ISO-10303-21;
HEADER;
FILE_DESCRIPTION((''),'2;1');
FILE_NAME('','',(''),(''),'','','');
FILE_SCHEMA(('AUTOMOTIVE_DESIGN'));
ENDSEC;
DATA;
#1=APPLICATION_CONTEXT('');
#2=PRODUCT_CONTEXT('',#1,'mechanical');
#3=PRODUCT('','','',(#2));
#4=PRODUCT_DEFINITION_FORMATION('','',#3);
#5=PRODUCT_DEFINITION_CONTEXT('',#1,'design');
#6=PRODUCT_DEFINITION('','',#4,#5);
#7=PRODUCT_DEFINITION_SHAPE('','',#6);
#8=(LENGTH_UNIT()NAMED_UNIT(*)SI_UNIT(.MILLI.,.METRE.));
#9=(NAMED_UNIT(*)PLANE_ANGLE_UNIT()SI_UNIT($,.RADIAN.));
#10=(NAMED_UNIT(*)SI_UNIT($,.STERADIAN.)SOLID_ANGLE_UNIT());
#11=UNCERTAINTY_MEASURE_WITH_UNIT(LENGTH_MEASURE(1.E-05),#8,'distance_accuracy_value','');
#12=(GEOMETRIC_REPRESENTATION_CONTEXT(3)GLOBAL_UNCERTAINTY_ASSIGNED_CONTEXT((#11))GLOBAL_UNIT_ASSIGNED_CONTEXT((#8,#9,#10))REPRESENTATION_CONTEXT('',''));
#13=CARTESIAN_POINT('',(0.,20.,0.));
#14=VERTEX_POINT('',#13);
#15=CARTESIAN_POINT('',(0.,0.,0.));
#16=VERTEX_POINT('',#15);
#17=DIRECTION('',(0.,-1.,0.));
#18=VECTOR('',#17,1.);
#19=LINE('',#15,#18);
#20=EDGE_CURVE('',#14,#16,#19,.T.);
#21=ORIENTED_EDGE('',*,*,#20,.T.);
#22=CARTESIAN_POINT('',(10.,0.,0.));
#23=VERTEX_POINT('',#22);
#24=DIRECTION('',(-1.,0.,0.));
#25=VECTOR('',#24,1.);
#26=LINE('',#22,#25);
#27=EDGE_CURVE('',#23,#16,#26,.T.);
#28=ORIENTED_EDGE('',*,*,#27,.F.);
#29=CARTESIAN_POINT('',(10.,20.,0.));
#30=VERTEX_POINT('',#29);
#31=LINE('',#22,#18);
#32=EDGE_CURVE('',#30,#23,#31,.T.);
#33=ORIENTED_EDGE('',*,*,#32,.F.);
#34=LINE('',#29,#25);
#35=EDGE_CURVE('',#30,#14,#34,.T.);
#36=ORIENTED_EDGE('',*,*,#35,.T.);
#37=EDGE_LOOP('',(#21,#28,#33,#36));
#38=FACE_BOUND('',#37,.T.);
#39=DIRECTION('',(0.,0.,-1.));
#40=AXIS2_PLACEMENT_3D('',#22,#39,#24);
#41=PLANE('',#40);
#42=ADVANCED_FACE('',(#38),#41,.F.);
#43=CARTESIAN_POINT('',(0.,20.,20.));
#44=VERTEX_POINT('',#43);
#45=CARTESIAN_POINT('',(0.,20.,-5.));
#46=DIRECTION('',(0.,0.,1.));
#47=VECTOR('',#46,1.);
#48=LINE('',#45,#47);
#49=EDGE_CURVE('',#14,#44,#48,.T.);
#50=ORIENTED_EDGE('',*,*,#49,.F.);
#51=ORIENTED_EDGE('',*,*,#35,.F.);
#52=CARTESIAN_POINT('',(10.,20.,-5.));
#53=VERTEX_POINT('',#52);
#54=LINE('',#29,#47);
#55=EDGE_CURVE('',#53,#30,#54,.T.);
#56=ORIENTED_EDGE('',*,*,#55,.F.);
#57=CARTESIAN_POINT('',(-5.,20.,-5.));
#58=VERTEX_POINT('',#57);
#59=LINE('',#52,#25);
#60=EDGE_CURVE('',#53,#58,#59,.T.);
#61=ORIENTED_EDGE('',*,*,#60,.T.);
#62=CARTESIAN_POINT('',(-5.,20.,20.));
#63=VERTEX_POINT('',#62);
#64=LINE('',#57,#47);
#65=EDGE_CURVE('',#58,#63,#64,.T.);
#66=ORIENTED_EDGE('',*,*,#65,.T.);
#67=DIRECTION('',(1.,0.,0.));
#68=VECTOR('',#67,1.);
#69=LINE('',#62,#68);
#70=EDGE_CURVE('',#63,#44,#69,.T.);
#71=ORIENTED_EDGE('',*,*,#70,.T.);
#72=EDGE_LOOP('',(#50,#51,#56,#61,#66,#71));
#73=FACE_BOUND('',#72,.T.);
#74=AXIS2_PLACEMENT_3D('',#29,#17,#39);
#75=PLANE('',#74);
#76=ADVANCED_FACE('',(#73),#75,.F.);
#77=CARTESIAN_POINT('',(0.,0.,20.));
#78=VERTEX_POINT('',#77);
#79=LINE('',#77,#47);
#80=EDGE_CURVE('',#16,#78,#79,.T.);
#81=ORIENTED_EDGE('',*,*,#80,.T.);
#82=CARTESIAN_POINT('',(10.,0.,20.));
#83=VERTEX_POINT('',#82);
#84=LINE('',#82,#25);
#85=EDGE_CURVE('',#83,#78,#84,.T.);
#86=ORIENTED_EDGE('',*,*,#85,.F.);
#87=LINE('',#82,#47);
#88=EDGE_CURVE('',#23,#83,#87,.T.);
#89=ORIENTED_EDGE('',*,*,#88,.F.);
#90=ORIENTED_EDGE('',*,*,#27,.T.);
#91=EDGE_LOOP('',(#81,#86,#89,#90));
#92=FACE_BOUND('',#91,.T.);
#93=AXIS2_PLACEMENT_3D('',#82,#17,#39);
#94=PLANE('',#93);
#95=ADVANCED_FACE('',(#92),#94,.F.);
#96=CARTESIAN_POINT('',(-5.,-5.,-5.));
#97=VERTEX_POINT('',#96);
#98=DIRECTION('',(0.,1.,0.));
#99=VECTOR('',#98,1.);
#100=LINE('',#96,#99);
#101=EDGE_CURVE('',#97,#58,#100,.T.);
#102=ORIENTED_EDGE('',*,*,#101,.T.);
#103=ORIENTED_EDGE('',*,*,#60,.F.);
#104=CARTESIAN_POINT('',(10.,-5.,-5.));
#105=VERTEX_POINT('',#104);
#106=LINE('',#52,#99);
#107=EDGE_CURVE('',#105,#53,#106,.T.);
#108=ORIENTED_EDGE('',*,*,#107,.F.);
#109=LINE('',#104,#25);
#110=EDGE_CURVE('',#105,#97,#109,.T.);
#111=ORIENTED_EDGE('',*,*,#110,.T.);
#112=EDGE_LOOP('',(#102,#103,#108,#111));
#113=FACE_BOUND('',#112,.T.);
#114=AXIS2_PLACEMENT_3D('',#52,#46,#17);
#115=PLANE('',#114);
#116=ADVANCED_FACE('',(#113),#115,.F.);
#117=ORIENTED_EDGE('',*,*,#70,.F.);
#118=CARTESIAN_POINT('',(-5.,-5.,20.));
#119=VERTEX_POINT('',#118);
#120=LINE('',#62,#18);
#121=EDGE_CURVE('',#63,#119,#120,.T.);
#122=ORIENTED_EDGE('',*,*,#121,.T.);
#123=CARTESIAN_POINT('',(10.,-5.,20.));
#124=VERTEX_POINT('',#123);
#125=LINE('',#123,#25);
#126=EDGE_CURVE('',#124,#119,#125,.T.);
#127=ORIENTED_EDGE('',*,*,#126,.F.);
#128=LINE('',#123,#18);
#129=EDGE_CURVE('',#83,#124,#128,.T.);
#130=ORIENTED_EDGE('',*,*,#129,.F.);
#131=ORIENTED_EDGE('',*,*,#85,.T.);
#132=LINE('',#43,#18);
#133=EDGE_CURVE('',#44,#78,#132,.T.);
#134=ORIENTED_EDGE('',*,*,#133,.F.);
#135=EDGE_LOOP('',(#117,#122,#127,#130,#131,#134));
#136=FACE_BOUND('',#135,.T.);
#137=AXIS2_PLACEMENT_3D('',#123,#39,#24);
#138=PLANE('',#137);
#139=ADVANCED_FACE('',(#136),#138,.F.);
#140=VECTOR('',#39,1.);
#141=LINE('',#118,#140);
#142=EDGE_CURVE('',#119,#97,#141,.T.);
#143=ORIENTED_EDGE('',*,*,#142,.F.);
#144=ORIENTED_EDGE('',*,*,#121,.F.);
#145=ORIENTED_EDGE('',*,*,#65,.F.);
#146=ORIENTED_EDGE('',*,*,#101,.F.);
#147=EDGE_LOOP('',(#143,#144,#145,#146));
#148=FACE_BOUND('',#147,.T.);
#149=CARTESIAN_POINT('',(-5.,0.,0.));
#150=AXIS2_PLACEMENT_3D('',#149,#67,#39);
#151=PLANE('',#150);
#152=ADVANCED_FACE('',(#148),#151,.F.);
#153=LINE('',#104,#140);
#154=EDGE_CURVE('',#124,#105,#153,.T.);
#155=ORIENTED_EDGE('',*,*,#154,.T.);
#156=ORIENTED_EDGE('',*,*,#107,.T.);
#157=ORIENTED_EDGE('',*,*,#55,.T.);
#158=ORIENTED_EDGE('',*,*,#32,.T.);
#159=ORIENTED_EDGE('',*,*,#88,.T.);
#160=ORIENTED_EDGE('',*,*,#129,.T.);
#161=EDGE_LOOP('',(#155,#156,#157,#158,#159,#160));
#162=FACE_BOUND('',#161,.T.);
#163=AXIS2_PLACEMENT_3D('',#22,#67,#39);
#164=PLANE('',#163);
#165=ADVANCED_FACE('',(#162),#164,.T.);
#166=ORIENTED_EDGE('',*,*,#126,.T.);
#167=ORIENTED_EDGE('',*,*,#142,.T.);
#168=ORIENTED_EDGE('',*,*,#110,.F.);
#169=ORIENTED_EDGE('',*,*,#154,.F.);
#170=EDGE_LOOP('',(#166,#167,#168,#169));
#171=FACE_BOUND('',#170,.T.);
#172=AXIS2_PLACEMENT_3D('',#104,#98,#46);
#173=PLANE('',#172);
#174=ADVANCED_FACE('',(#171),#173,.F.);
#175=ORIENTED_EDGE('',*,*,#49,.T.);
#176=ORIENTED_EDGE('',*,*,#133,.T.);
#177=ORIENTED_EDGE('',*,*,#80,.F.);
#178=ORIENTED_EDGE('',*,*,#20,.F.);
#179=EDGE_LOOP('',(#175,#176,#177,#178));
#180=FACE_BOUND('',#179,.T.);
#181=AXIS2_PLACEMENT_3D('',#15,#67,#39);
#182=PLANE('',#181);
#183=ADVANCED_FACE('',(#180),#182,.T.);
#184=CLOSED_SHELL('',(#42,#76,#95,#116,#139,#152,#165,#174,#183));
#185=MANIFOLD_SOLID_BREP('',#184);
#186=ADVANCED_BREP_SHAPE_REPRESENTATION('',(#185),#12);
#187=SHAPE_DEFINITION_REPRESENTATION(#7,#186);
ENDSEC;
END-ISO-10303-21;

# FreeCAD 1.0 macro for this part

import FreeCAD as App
import Part
import Sketcher
from FreeCAD import Vector
Q = App.Units.Quantity

doc = App.newDocument("Part")
body = doc.addObject("PartDesign::Body", "Body")

# Sketch on YZ plane
sketch1 = body.newObject("Sketcher::SketchObject", "Sketch")
sketch1.AttachmentSupport = (doc.getObject("YZ_Plane"), [""])
sketch1.MapMode = "FlatFace"
sketch1.addGeometry([
    Part.LineSegment(Vector(20, 0, 0), Vector(0, 0, 0)),  # 0
    Part.LineSegment(Vector(0, 0, 0), Vector(0, 20, 0)),  # 1
    Part.LineSegment(Vector(0, 20, 0), Vector(-5, 20, 0)),  # 2
    Part.LineSegment(Vector(-5, 20, 0), Vector(-5, -5, 0)),  # 3
    Part.LineSegment(Vector(-5, -5, 0), Vector(20, -5, 0)),  # 4
    Part.LineSegment(Vector(20, -5, 0), Vector(20, 0, 0)),  # 5
], False)
sketch1.addConstraint([
    Sketcher.Constraint("Coincident", 0, 2, 1, 1),
    Sketcher.Constraint("Coincident", 1, 2, 2, 1),
    Sketcher.Constraint("Coincident", 2, 2, 3, 1),
    Sketcher.Constraint("Coincident", 3, 2, 4, 1),
    Sketcher.Constraint("Coincident", 4, 2, 5, 1),
    Sketcher.Constraint("Coincident", 5, 2, 0, 1),
    Sketcher.Constraint("Horizontal", 0),
    Sketcher.Constraint("Vertical", 1),
    Sketcher.Constraint("Horizontal", 2),
    Sketcher.Constraint("Vertical", 3),
    Sketcher.Constraint("Horizontal", 4),
    Sketcher.Constraint("Vertical", 5),
    Sketcher.Constraint("Coincident", 0, 2, -1, 1),
    Sketcher.Constraint("Equal", 0, 1),
    Sketcher.Constraint("Equal", 4, 3),
    Sketcher.Constraint("DistanceX", 0, 2, 0, 1, Q("20 mm")),
    Sketcher.Constraint("DistanceX", 2, 2, 2, 1, Q("5 mm")),
])
pad1 = body.newObject("PartDesign::Pad", "Pad")
pad1.Profile = sketch1
pad1.Length = 10

# Sketch on YZ plane
sketch2 = body.newObject("Sketcher::SketchObject", "Sketch001")
sketch2.AttachmentSupport = (doc.getObject("YZ_Plane"), [""])
sketch2.MapMode = "FlatFace"
sketch2.addGeometry([
    Part.LineSegment(Vector(20, 20, 0), Vector(-5, 20, 0)),
    Part.LineSegment(Vector(-5, 20, 0), Vector(-5, -5, 0)),
    Part.LineSegment(Vector(-5, -5, 0), Vector(20, -5, 0)),
    Part.LineSegment(Vector(20, -5, 0), Vector(20, 20, 0)),
], False)
sketch2.addConstraint([
    Sketcher.Constraint("Coincident", 0, 2, 1, 1),
    Sketcher.Constraint("Coincident", 1, 2, 2, 1),
    Sketcher.Constraint("Coincident", 2, 2, 3, 1),
    Sketcher.Constraint("Coincident", 3, 2, 0, 1),
    Sketcher.Constraint("Horizontal", 0),
    Sketcher.Constraint("Vertical", 1),
    Sketcher.Constraint("Horizontal", 2),
    Sketcher.Constraint("Vertical", 3),
    Sketcher.Constraint("Equal", 2, 1),
    Sketcher.Constraint("DistanceX", 0, 2, 0, 1, Q("25 mm")),
    Sketcher.Constraint("DistanceX", 0, 2, -1, 1, Q("5 mm")),
    Sketcher.Constraint("DistanceY", -1, 1, 0, 2, Q("20 mm")),
])
pad2 = body.newObject("PartDesign::Pad", "Pad001")
pad2.Profile = sketch2
pad2.Length = 5
pad2.Reversed = True

doc.recompute()
